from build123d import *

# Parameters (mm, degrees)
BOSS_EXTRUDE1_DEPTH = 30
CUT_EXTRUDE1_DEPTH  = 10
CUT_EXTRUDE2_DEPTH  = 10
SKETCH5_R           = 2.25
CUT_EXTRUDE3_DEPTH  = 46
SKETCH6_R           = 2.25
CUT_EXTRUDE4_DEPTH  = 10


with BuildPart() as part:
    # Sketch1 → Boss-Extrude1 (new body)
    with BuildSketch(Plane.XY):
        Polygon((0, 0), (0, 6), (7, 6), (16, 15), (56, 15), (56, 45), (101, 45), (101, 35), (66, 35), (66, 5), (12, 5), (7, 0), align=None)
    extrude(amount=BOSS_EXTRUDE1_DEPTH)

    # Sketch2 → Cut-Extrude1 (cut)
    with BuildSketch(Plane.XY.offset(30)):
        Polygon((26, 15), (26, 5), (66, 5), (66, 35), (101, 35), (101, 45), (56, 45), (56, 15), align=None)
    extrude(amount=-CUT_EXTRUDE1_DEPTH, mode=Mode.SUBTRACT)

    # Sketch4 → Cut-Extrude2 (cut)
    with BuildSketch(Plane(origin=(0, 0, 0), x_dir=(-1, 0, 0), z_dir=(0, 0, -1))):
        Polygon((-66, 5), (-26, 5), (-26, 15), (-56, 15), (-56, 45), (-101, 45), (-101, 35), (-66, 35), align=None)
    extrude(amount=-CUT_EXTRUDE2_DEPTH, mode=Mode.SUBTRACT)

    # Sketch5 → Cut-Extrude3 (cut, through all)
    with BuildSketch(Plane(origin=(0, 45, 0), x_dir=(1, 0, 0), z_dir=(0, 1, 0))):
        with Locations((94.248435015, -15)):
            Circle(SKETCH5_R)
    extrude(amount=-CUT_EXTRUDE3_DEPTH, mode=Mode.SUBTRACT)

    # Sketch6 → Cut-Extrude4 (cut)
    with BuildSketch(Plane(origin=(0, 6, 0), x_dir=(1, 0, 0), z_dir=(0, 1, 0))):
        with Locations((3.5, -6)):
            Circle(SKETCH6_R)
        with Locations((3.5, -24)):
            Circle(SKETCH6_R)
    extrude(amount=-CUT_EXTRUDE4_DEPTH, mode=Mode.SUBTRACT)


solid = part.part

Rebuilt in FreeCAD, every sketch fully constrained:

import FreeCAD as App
import Part
import Sketcher
Q = App.Units.Quantity

doc = App.newDocument("Part")
params = doc.addObject("Spreadsheet::Sheet", "Params")
for row, (alias, value) in enumerate([
    ("sketch1_width", "7 mm"),
    ("sketch1_width2", "54 mm"),
    ("sketch1_width3", "35 mm"),
    ("sketch1_width4", "45 mm"),
    ("sketch1_width5", "40 mm"),
    ("pad1_length", "30 mm"),
    ("sketch2_width", "40 mm"),
    ("sketch2_width2", "35 mm"),
    ("sketch2_width3", "45 mm"),
    ("sketch2_height", "10 mm"),
    ("pocket1_length", "10 mm"),
    ("sketch3_width", "40 mm"),
    ("sketch3_width2", "30 mm"),
    ("sketch3_width3", "45 mm"),
    ("sketch3_height", "10 mm"),
    ("pocket2_length", "10 mm"),
    ("sketch4_diameter", "4.5 mm"),
    ("sketch5_diameter", "4.5 mm"),
    ("pocket4_length", "10 mm"),
], start=1):
    params.set(f"A{row}", alias)
    params.set(f"B{row}", "=" + value)
    params.setAlias(f"B{row}", alias)

body = doc.addObject("PartDesign::Body", "Body")

sketch1 = doc.addObject("Sketcher::SketchObject", "Sketch")
body.addObject(sketch1)
sketch1.AttachmentSupport = (doc.XY_Plane, [""])
sketch1.MapMode = "FlatFace"
sketch1.addGeometry([
    Part.LineSegment(App.Vector(0, 6, 0), App.Vector(0, 0, 0)),
    Part.LineSegment(App.Vector(0, 0, 0), App.Vector(7, 0, 0)),
    Part.LineSegment(App.Vector(7, 0, 0), App.Vector(12, 5, 0)),
    Part.LineSegment(App.Vector(12, 5, 0), App.Vector(66, 5, 0)),
    Part.LineSegment(App.Vector(66, 5, 0), App.Vector(66, 35, 0)),
    Part.LineSegment(App.Vector(66, 35, 0), App.Vector(101, 35, 0)),
    Part.LineSegment(App.Vector(101, 35, 0), App.Vector(101, 45, 0)),
    Part.LineSegment(App.Vector(101, 45, 0), App.Vector(56, 45, 0)),
    Part.LineSegment(App.Vector(56, 45, 0), App.Vector(56, 15, 0)),
    Part.LineSegment(App.Vector(56, 15, 0), App.Vector(16, 15, 0)),
    Part.LineSegment(App.Vector(16, 15, 0), App.Vector(7, 6, 0)),
    Part.LineSegment(App.Vector(7, 6, 0), App.Vector(0, 6, 0)),
], False)
sketch1.addConstraint([
    Sketcher.Constraint("Coincident", 0, 2, 1, 1),
    Sketcher.Constraint("Coincident", 1, 2, 2, 1),
    Sketcher.Constraint("Coincident", 2, 2, 3, 1),
    Sketcher.Constraint("Coincident", 3, 2, 4, 1),
    Sketcher.Constraint("Coincident", 4, 2, 5, 1),
    Sketcher.Constraint("Coincident", 5, 2, 6, 1),
    Sketcher.Constraint("Coincident", 6, 2, 7, 1),
    Sketcher.Constraint("Coincident", 7, 2, 8, 1),
    Sketcher.Constraint("Coincident", 8, 2, 9, 1),
    Sketcher.Constraint("Coincident", 9, 2, 10, 1),
    Sketcher.Constraint("Coincident", 10, 2, 11, 1),
    Sketcher.Constraint("Coincident", 11, 2, 0, 1),
    Sketcher.Constraint("Vertical", 0),
    Sketcher.Constraint("Horizontal", 1),
    Sketcher.Constraint("Horizontal", 3),
    Sketcher.Constraint("Vertical", 4),
    Sketcher.Constraint("Horizontal", 5),
    Sketcher.Constraint("Vertical", 6),
    Sketcher.Constraint("Horizontal", 7),
    Sketcher.Constraint("Vertical", 8),
    Sketcher.Constraint("Horizontal", 9),
    Sketcher.Constraint("Horizontal", 11),
    Sketcher.Constraint("Coincident", 0, 2, -1, 1),
    Sketcher.Constraint("Parallel", 2, 10),
    Sketcher.Constraint("Vertical", 1, 2, 10, 2),
    Sketcher.Constraint("Equal", 4, 8),
    Sketcher.Constraint("DistanceX", 1, 1, 1, 2, Q("7 mm")),
    Sketcher.Constraint("DistanceX", 3, 1, 3, 2, Q("54 mm")),
    Sketcher.Constraint("DistanceX", 5, 1, 5, 2, Q("35 mm")),
    Sketcher.Constraint("DistanceX", 7, 2, 7, 1, Q("45 mm")),
    Sketcher.Constraint("DistanceX", 9, 2, 9, 1, Q("40 mm")),
    Sketcher.Constraint("DistanceY", 0, 2, 0, 1, Q("6 mm")),
    Sketcher.Constraint("DistanceY", 4, 1, 4, 2, Q("30 mm")),
    Sketcher.Constraint("DistanceY", 6, 1, 6, 2, Q("10 mm")),
    Sketcher.Constraint("DistanceX", -1, 1, 2, 2, Q("12 mm")),
])
sketch1.setExpression("Constraints[26]", "Params.sketch1_width")
sketch1.setExpression("Constraints[27]", "Params.sketch1_width2")
sketch1.setExpression("Constraints[28]", "Params.sketch1_width3")
sketch1.setExpression("Constraints[29]", "Params.sketch1_width4")
sketch1.setExpression("Constraints[30]", "Params.sketch1_width5")
pad1 = doc.addObject("PartDesign::Pad", "Pad")
body.addObject(pad1)
pad1.Profile = sketch1
pad1.setExpression("Length", "Params.pad1_length")

sketch2 = doc.addObject("Sketcher::SketchObject", "Sketch001")
body.addObject(sketch2)
sketch2.AttachmentSupport = (doc.XY_Plane, [""])
sketch2.MapMode = "FlatFace"
sketch2.AttachmentOffset = App.Placement(App.Vector(0, 0, 30), App.Rotation())
sketch2.addGeometry([
    Part.LineSegment(App.Vector(26, 15, 0), App.Vector(26, 5, 0)),
    Part.LineSegment(App.Vector(26, 5, 0), App.Vector(66, 5, 0)),
    Part.LineSegment(App.Vector(66, 5, 0), App.Vector(66, 35, 0)),
    Part.LineSegment(App.Vector(66, 35, 0), App.Vector(101, 35, 0)),
    Part.LineSegment(App.Vector(101, 35, 0), App.Vector(101, 45, 0)),
    Part.LineSegment(App.Vector(101, 45, 0), App.Vector(56, 45, 0)),
    Part.LineSegment(App.Vector(56, 45, 0), App.Vector(56, 15, 0)),
    Part.LineSegment(App.Vector(56, 15, 0), App.Vector(26, 15, 0)),
], False)
sketch2.addConstraint([
    Sketcher.Constraint("Coincident", 0, 2, 1, 1),
    Sketcher.Constraint("Coincident", 1, 2, 2, 1),
    Sketcher.Constraint("Coincident", 2, 2, 3, 1),
    Sketcher.Constraint("Coincident", 3, 2, 4, 1),
    Sketcher.Constraint("Coincident", 4, 2, 5, 1),
    Sketcher.Constraint("Coincident", 5, 2, 6, 1),
    Sketcher.Constraint("Coincident", 6, 2, 7, 1),
    Sketcher.Constraint("Coincident", 7, 2, 0, 1),
    Sketcher.Constraint("Vertical", 0),
    Sketcher.Constraint("Horizontal", 1),
    Sketcher.Constraint("Vertical", 2),
    Sketcher.Constraint("Horizontal", 3),
    Sketcher.Constraint("Vertical", 4),
    Sketcher.Constraint("Horizontal", 5),
    Sketcher.Constraint("Vertical", 6),
    Sketcher.Constraint("Horizontal", 7),
    Sketcher.Constraint("Equal", 7, 2),
    Sketcher.Constraint("Equal", 0, 4),
    Sketcher.Constraint("DistanceX", 1, 1, 1, 2, Q("40 mm")),
    Sketcher.Constraint("DistanceX", 3, 1, 3, 2, Q("35 mm")),
    Sketcher.Constraint("DistanceX", 5, 2, 5, 1, Q("45 mm")),
    Sketcher.Constraint("DistanceY", 0, 2, 0, 1, Q("10 mm")),
    Sketcher.Constraint("DistanceX", -1, 1, 0, 2, Q("26 mm")),
    Sketcher.Constraint("DistanceY", -1, 1, 0, 2, Q("5 mm")),
])
sketch2.setExpression("Constraints[18]", "Params.sketch2_width")
sketch2.setExpression("Constraints[19]", "Params.sketch2_width2")
sketch2.setExpression("Constraints[20]", "Params.sketch2_width3")
sketch2.setExpression("Constraints[21]", "Params.sketch2_height")
pocket1 = doc.addObject("PartDesign::Pocket", "Pocket")
body.addObject(pocket1)
pocket1.Profile = sketch2
pocket1.setExpression("Length", "Params.pocket1_length")

sketch3 = doc.addObject("Sketcher::SketchObject", "Sketch002")
body.addObject(sketch3)
sketch3.AttachmentSupport = (doc.XY_Plane, [""])
sketch3.MapMode = "FlatFace"
sketch3.addGeometry([
    Part.LineSegment(App.Vector(66, 5, 0), App.Vector(26, 5, 0)),
    Part.LineSegment(App.Vector(26, 5, 0), App.Vector(26, 15, 0)),
    Part.LineSegment(App.Vector(26, 15, 0), App.Vector(56, 15, 0)),
    Part.LineSegment(App.Vector(56, 15, 0), App.Vector(56, 45, 0)),
    Part.LineSegment(App.Vector(56, 45, 0), App.Vector(101, 45, 0)),
    Part.LineSegment(App.Vector(101, 45, 0), App.Vector(101, 35, 0)),
    Part.LineSegment(App.Vector(101, 35, 0), App.Vector(66, 35, 0)),
    Part.LineSegment(App.Vector(66, 35, 0), App.Vector(66, 5, 0)),
], False)
sketch3.addConstraint([
    Sketcher.Constraint("Coincident", 0, 2, 1, 1),
    Sketcher.Constraint("Coincident", 1, 2, 2, 1),
    Sketcher.Constraint("Coincident", 2, 2, 3, 1),
    Sketcher.Constraint("Coincident", 3, 2, 4, 1),
    Sketcher.Constraint("Coincident", 4, 2, 5, 1),
    Sketcher.Constraint("Coincident", 5, 2, 6, 1),
    Sketcher.Constraint("Coincident", 6, 2, 7, 1),
    Sketcher.Constraint("Coincident", 7, 2, 0, 1),
    Sketcher.Constraint("Horizontal", 0),
    Sketcher.Constraint("Vertical", 1),
    Sketcher.Constraint("Horizontal", 2),
    Sketcher.Constraint("Vertical", 3),
    Sketcher.Constraint("Horizontal", 4),
    Sketcher.Constraint("Vertical", 5),
    Sketcher.Constraint("Horizontal", 6),
    Sketcher.Constraint("Vertical", 7),
    Sketcher.Constraint("Equal", 2, 3),
    Sketcher.Constraint("Equal", 1, 5),
    Sketcher.Constraint("DistanceX", 0, 2, 0, 1, Q("40 mm")),
    Sketcher.Constraint("DistanceX", 2, 1, 2, 2, Q("30 mm")),
    Sketcher.Constraint("DistanceX", 4, 1, 4, 2, Q("45 mm")),
    Sketcher.Constraint("DistanceY", 1, 1, 1, 2, Q("10 mm")),
    Sketcher.Constraint("DistanceX", -1, 1, 0, 2, Q("26 mm")),
    Sketcher.Constraint("DistanceY", -1, 1, 0, 2, Q("5 mm")),
])
sketch3.setExpression("Constraints[18]", "Params.sketch3_width")
sketch3.setExpression("Constraints[19]", "Params.sketch3_width2")
sketch3.setExpression("Constraints[20]", "Params.sketch3_width3")
sketch3.setExpression("Constraints[21]", "Params.sketch3_height")
pocket2 = doc.addObject("PartDesign::Pocket", "Pocket001")
body.addObject(pocket2)
pocket2.Profile = sketch3
pocket2.setExpression("Length", "Params.pocket2_length")
pocket2.Reversed = True

sketch4 = doc.addObject("Sketcher::SketchObject", "Sketch003")
body.addObject(sketch4)
sketch4.AttachmentSupport = (doc.XZ_Plane, [""])
sketch4.MapMode = "FlatFace"
sketch4.AttachmentOffset = App.Placement(App.Vector(0, 0, -45), App.Rotation())
sketch4.addGeometry(Part.Circle(App.Vector(94.2, 15, 0), App.Vector(0, 0, 1), 2.2), False)
sketch4.addConstraint([
    Sketcher.Constraint("Diameter", 0, Q("4.5 mm")),
    Sketcher.Constraint("DistanceY", -1, 1, 0, 3, Q("15 mm")),
    Sketcher.Constraint("DistanceX", -1, 1, 0, 3, Q("94.248435 mm")),
])
sketch4.setExpression("Constraints[0]", "Params.sketch4_diameter")
pocket3 = doc.addObject("PartDesign::Pocket", "Pocket002")
body.addObject(pocket3)
pocket3.Profile = sketch4
pocket3.Type = "ThroughAll"
pocket3.Reversed = True

sketch5 = doc.addObject("Sketcher::SketchObject", "Sketch004")
body.addObject(sketch5)
sketch5.AttachmentSupport = (doc.XZ_Plane, [""])
sketch5.MapMode = "FlatFace"
sketch5.AttachmentOffset = App.Placement(App.Vector(0, 0, -6), App.Rotation())
sketch5.addGeometry([
    Part.Circle(App.Vector(3.5, 6, 0), App.Vector(0, 0, 1), 2.2),
    Part.Circle(App.Vector(3.5, 24, 0), App.Vector(0, 0, 1), 2.2),
], False)
sketch5.addConstraint([
    Sketcher.Constraint("Equal", 0, 1),
    Sketcher.Constraint("Vertical", 0, 3, 1, 3),
    Sketcher.Constraint("Diameter", 0, Q("4.5 mm")),
    Sketcher.Constraint("DistanceY", -1, 1, 0, 3, Q("6 mm")),
    Sketcher.Constraint("DistanceY", -1, 1, 1, 3, Q("24 mm")),
    Sketcher.Constraint("DistanceX", -1, 1, 0, 3, Q("3.5 mm")),
])
sketch5.setExpression("Constraints[2]", "Params.sketch5_diameter")
pocket4 = doc.addObject("PartDesign::Pocket", "Pocket003")
body.addObject(pocket4)
pocket4.Profile = sketch5
pocket4.setExpression("Length", "Params.pocket4_length")
pocket4.Reversed = True

doc.recompute()
